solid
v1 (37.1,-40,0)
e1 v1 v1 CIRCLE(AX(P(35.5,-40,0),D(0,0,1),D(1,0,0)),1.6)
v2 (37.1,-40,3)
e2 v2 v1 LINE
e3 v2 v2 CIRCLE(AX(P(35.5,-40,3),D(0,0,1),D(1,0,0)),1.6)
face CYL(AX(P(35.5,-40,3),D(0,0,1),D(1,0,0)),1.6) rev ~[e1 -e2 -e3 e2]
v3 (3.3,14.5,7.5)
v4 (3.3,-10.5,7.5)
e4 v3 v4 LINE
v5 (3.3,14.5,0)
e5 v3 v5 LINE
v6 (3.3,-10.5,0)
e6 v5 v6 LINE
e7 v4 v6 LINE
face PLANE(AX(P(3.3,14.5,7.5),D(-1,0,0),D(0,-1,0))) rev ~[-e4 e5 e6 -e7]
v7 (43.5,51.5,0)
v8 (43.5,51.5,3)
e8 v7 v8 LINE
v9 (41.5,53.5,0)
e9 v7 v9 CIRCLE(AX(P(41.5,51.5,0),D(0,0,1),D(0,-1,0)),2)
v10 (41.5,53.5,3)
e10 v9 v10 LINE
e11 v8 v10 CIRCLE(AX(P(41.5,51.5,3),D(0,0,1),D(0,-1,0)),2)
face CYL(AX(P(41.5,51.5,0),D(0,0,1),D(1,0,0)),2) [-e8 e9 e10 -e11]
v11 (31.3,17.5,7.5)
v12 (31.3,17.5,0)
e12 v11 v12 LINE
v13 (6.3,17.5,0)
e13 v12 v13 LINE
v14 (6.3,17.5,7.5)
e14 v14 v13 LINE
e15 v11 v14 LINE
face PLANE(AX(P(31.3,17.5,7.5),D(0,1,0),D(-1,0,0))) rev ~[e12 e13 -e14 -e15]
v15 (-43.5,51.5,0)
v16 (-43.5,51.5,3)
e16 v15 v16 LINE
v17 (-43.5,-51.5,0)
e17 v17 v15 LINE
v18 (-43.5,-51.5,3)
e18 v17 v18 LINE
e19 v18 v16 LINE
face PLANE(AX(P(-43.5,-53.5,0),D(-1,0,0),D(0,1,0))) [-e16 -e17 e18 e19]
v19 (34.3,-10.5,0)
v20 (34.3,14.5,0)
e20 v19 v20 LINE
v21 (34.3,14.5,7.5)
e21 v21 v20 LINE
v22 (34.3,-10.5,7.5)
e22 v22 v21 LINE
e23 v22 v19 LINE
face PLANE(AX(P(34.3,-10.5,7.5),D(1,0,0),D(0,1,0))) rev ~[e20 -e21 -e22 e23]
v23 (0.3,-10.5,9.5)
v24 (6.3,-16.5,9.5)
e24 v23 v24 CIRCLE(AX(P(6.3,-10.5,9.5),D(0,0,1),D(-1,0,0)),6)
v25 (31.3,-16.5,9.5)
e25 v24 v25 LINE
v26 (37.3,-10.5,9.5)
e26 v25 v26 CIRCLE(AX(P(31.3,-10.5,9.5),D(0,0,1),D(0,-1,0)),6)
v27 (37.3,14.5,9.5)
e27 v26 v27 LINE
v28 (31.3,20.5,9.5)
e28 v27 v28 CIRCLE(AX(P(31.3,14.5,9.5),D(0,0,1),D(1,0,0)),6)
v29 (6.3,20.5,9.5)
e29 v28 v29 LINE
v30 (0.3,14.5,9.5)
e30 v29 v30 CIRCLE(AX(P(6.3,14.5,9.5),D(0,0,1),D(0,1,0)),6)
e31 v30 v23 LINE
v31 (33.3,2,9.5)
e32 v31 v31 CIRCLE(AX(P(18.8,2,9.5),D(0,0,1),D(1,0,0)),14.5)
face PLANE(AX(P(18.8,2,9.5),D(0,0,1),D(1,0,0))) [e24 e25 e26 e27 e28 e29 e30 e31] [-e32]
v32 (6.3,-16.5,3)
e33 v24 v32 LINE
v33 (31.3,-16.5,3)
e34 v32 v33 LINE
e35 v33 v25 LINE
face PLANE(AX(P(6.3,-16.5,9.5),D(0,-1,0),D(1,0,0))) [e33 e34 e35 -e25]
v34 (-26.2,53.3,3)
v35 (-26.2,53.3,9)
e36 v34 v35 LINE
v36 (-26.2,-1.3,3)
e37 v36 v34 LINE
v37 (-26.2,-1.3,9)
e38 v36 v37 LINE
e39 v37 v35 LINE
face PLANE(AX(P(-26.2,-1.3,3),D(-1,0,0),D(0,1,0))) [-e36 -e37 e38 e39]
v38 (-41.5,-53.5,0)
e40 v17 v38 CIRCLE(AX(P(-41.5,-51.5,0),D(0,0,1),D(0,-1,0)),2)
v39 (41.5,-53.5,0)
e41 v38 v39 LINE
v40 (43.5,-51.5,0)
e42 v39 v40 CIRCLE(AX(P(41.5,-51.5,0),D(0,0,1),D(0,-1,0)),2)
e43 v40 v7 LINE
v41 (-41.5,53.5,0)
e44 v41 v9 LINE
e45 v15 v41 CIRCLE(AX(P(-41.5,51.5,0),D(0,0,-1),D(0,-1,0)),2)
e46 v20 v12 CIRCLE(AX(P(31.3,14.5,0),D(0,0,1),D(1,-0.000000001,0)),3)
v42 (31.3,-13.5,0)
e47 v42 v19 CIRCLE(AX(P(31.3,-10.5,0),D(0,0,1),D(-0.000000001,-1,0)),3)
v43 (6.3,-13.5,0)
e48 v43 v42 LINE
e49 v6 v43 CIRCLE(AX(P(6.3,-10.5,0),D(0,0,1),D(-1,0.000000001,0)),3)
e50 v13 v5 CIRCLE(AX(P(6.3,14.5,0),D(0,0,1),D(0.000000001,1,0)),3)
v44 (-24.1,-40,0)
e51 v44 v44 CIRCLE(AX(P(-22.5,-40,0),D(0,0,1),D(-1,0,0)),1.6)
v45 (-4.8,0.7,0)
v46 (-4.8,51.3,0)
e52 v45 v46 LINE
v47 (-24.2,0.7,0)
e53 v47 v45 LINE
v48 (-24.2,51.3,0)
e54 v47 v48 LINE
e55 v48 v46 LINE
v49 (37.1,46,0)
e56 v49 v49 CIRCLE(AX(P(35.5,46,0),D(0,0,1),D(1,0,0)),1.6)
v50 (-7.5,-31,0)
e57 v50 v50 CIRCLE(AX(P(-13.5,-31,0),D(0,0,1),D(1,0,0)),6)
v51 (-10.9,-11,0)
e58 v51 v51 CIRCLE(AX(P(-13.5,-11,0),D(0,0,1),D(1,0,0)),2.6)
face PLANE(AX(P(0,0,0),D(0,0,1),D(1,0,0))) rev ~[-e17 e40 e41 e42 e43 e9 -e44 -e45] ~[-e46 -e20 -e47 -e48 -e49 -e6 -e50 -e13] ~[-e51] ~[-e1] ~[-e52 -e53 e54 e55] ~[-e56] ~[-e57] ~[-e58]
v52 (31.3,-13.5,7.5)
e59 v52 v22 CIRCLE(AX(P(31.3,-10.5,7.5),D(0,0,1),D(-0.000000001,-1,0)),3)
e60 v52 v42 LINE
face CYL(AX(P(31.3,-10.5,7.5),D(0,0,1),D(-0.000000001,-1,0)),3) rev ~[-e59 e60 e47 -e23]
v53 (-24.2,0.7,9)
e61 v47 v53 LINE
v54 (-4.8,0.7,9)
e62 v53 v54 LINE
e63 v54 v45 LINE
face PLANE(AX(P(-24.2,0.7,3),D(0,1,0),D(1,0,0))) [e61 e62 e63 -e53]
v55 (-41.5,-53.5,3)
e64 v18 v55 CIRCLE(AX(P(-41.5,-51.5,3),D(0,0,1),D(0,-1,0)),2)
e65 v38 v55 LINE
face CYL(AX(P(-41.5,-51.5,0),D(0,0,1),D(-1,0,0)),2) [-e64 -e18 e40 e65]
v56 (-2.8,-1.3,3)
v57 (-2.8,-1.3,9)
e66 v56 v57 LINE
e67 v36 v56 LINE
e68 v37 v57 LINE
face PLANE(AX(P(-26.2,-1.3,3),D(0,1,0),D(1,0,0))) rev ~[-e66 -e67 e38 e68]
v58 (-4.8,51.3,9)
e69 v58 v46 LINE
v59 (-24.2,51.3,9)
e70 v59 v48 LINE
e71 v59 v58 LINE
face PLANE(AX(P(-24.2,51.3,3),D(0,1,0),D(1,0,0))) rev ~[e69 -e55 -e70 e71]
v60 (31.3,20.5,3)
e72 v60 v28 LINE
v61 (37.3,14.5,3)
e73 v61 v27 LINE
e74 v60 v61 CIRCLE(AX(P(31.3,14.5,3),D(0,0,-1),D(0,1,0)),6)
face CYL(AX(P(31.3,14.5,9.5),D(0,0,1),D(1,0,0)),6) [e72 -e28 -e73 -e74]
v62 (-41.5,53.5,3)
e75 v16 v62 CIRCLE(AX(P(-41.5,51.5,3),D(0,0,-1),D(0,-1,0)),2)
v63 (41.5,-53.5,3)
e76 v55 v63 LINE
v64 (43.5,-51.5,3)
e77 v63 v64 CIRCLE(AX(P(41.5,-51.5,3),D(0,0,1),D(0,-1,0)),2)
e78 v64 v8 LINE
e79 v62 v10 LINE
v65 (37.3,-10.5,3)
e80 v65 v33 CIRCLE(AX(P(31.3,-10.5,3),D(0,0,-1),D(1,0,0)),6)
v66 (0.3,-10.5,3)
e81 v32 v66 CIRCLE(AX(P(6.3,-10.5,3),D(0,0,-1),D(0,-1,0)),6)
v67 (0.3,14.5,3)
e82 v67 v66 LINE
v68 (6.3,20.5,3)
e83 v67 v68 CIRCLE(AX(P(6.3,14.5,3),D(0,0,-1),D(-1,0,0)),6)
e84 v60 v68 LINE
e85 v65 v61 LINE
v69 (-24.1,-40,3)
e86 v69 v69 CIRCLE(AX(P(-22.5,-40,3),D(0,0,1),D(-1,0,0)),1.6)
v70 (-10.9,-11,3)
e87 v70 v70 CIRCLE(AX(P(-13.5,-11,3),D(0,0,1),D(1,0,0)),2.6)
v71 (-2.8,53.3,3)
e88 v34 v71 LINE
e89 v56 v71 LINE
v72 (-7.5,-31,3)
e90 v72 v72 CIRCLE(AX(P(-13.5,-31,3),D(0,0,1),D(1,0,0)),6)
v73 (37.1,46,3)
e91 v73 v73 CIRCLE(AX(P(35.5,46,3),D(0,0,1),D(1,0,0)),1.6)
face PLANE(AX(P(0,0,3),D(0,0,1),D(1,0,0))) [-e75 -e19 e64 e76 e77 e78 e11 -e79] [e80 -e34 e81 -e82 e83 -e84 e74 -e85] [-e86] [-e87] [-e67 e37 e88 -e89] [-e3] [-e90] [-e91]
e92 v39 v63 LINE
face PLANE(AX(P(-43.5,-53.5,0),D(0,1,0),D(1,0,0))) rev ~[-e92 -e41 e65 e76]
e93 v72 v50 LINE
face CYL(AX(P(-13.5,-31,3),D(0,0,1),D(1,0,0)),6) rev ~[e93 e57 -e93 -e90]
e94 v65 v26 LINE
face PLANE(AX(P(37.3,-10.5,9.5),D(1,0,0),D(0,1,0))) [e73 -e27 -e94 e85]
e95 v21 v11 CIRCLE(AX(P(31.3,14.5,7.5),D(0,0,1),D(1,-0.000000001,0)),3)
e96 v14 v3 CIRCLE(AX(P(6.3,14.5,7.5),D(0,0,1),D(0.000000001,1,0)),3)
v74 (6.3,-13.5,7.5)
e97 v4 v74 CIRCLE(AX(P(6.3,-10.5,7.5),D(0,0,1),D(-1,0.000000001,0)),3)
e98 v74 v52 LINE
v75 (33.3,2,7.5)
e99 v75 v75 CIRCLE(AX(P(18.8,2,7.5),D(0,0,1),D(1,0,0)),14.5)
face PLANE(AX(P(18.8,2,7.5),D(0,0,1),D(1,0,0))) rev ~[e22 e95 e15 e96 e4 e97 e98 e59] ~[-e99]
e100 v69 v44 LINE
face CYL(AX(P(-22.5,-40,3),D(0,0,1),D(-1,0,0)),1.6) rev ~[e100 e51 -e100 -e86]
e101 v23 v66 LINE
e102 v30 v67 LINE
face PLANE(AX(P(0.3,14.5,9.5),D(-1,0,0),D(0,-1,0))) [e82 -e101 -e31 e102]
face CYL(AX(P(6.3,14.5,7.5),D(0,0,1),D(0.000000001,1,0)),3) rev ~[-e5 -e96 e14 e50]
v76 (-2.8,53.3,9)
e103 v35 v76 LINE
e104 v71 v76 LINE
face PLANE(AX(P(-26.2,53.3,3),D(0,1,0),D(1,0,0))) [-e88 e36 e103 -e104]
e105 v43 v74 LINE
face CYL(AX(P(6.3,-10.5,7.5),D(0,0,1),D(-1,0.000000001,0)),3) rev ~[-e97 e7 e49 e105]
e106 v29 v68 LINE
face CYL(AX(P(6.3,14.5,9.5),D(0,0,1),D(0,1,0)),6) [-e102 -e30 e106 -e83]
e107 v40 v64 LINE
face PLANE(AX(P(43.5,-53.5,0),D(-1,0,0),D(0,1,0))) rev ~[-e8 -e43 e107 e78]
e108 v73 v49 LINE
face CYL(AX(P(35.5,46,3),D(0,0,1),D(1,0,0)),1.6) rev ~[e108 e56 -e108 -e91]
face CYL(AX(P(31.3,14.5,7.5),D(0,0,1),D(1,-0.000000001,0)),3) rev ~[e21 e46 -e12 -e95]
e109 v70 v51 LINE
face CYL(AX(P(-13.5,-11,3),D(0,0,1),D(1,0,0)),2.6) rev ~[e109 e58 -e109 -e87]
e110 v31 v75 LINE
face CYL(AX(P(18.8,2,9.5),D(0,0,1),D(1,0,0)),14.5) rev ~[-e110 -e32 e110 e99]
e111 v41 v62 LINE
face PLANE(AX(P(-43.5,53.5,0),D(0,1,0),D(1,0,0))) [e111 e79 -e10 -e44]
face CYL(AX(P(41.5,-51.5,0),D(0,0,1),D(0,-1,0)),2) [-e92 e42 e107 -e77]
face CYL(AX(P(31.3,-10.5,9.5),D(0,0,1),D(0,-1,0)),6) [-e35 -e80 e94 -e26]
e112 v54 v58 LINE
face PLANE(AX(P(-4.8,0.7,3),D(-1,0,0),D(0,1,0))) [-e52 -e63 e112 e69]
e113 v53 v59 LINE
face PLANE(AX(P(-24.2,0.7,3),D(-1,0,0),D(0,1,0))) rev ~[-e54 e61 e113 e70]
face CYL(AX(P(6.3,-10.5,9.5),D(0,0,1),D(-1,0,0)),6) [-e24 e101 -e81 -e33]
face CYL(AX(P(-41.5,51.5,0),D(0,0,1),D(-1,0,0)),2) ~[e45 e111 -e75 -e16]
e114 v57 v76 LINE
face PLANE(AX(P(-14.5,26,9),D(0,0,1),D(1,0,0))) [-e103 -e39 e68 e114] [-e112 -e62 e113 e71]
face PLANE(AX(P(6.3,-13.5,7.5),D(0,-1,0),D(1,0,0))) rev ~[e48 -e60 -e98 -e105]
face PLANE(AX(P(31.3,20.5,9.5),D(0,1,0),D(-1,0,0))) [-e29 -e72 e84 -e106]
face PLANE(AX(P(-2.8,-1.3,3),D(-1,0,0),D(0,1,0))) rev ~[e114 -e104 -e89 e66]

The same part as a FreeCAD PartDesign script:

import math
import FreeCAD as App
import Part
import Sketcher


def edges_at(feature, points):
    """Names of the edges that pass closest to the given points."""
    edges = feature.Shape.Edges
    near = lambda p: min(range(len(edges)), key=lambda i: edges[i].distToShape(Part.Vertex(*p))[0])
    return sorted({f"Edge{near(p) + 1}" for p in points})


def add_polygon(sketch, points):
    """Adds a closed chain of lines whose ends are joined by coincident constraints."""
    first, n = sketch.GeometryCount, len(points)
    for a, b in zip(points, points[1:] + points[:1]):
        sketch.addGeometry(Part.LineSegment(App.Vector(*a, 0), App.Vector(*b, 0)), False)
    for i in range(n):
        sketch.addConstraint(Sketcher.Constraint("Coincident", first + i, 2, first + (i + 1) % n, 1))

doc = App.newDocument("Part")
params = doc.addObject("Spreadsheet::Sheet", "Params")
for row, (alias, value) in enumerate([
    ("sketch1_width", "87 mm"),
    ("sketch1_height", "107 mm"),
    ("pad1_length", "3 mm"),
    ("fillet_radius", "2 mm"),
    ("sketch2_diameter", "3.2 mm"),
    ("pocket1_length", "3 mm"),
    ("sketch3_diameter", "3.2 mm"),
    ("pocket2_length", "3 mm"),
    ("sketch4_radius", "3 mm"),
    ("sketch4_width", "25 mm"),
    ("pocket3_length", "10 mm"),
    ("sketch5_radius", "6 mm"),
    ("sketch5_radius2", "3 mm"),
    ("sketch5_width", "25 mm"),
    ("pad2_length", "4.5 mm"),
    ("sketch6_radius", "3 mm"),
    ("sketch6_width", "25 mm"),
    ("pad3_length", "3 mm"),
    ("sketch7_diameter", "29 mm"),
    ("sketch7_radius", "6 mm"),
    ("sketch7_width", "25 mm"),
    ("pad4_length", "2 mm"),
    ("sketch8_diameter", "12 mm"),
    ("sketch8_diameter2", "5.2 mm"),
    ("pocket4_length", "10 mm"),
    ("sketch9_width", "19.4 mm"),
    ("sketch9_height", "50.6 mm"),
    ("pocket5_length", "10 mm"),
    ("sketch10_width", "23.4 mm"),
    ("sketch10_width2", "19.4 mm"),
    ("sketch10_height", "54.6 mm"),
    ("sketch10_height2", "50.6 mm"),
    ("pad5_length", "6 mm"),
], start=1):
    params.set(f"A{row}", alias)
    params.set(f"B{row}", "=" + value)
    params.setAlias(f"B{row}", alias)

body = doc.addObject("PartDesign::Body", "Body")

sketch1 = doc.addObject("Sketcher::SketchObject", "Sketch")
body.addObject(sketch1)
sketch1.AttachmentSupport = (doc.XY_Plane, [""])
sketch1.MapMode = "FlatFace"
add_polygon(sketch1, [(-44, 54), (-44, -54), (44, -54), (44, 54)])
sketch1.addConstraint(Sketcher.Constraint("Vertical", 0))
sketch1.addConstraint(Sketcher.Constraint("Horizontal", 1))
sketch1.addConstraint(Sketcher.Constraint("Vertical", 2))
sketch1.addConstraint(Sketcher.Constraint("Horizontal", 3))
sketch1.addConstraint(Sketcher.Constraint("Symmetric", 0, 2, 2, 2, -1, 1))
sketch1.addConstraint(Sketcher.Constraint("DistanceX", 1, 1, 1, 2, 87.0))
sketch1.addConstraint(Sketcher.Constraint("DistanceY", 0, 2, 0, 1, 107.0))
sketch1.setExpression("Constraints[9]", "Params.sketch1_width")
sketch1.setExpression("Constraints[10]", "Params.sketch1_height")
pad1 = doc.addObject("PartDesign::Pad", "Pad")
body.addObject(pad1)
pad1.Profile = sketch1
pad1.setExpression("Length", "Params.pad1_length")
doc.recompute()

fillet = doc.addObject("PartDesign::Fillet", "Fillet")
body.addObject(fillet)
fillet.Base = (pad1, edges_at(pad1, [
    (43.5, -53.5, 1.5),
    (-43.5, -53.5, 1.5),
    (-43.5, 53.5, 1.5),
    (43.5, 53.5, 1.5),
]))
fillet.setExpression("Radius", "Params.fillet_radius")

sketch2 = doc.addObject("Sketcher::SketchObject", "Sketch001")
body.addObject(sketch2)
sketch2.AttachmentSupport = (doc.XY_Plane, [""])
sketch2.MapMode = "FlatFace"
sketch2.AttachmentOffset = App.Placement(App.Vector(0, 0, 3), App.Rotation())
sketch2.addGeometry(Part.Circle(App.Vector(35.5, 46, 0), App.Vector(0, 0, 1), 1.6), False)
sketch2.addGeometry(Part.Circle(App.Vector(35.5, -40, 0), App.Vector(0, 0, 1), 1.6), False)
sketch2.addGeometry(Part.Circle(App.Vector(-22.5, 46, 0), App.Vector(0, 0, 1), 1.6), False)
sketch2.addGeometry(Part.Circle(App.Vector(-22.5, -40, 0), App.Vector(0, 0, 1), 1.6), False)
sketch2.addConstraint(Sketcher.Constraint("Equal", 0, 1))
sketch2.addConstraint(Sketcher.Constraint("Equal", 1, 2))
sketch2.addConstraint(Sketcher.Constraint("Equal", 2, 3))
sketch2.addConstraint(Sketcher.Constraint("Horizontal", 0, 3, 2, 3))
sketch2.addConstraint(Sketcher.Constraint("Horizontal", 1, 3, 3, 3))
sketch2.addConstraint(Sketcher.Constraint("Vertical", 0, 3, 1, 3))
sketch2.addConstraint(Sketcher.Constraint("Vertical", 2, 3, 3, 3))
sketch2.addConstraint(Sketcher.Constraint("Diameter", 0, 3.2))
sketch2.addConstraint(Sketcher.Constraint("DistanceY", -1, 1, 0, 3, 46.0))
sketch2.addConstraint(Sketcher.Constraint("DistanceY", 1, 3, -1, 1, 40.0))
sketch2.addConstraint(Sketcher.Constraint("DistanceX", 2, 3, 0, 3, 58.0))
sketch2.addConstraint(Sketcher.Constraint("DistanceX", -1, 1, 0, 3, 35.5))
sketch2.setExpression("Constraints[7]", "Params.sketch2_diameter")
pocket1 = doc.addObject("PartDesign::Pocket", "Pocket")
body.addObject(pocket1)
pocket1.Profile = sketch2
pocket1.setExpression("Length", "Params.pocket1_length")

sketch3 = doc.addObject("Sketcher::SketchObject", "Sketch002")
body.addObject(sketch3)
sketch3.AttachmentSupport = (doc.XY_Plane, [""])
sketch3.MapMode = "FlatFace"
sketch3.AttachmentOffset = App.Placement(App.Vector(0, 0, 3), App.Rotation())
sketch3.addGeometry(Part.Circle(App.Vector(34.8, 18, 0), App.Vector(0, 0, 1), 1.6), False)
sketch3.addGeometry(Part.Circle(App.Vector(34.8, -14, 0), App.Vector(0, 0, 1), 1.6), False)
sketch3.addGeometry(Part.Circle(App.Vector(2.8, -14, 0), App.Vector(0, 0, 1), 1.6), False)
sketch3.addGeometry(Part.Circle(App.Vector(2.8, 18, 0), App.Vector(0, 0, 1), 1.6), False)
sketch3.addConstraint(Sketcher.Constraint("Equal", 0, 1))
sketch3.addConstraint(Sketcher.Constraint("Equal", 1, 2))
sketch3.addConstraint(Sketcher.Constraint("Equal", 2, 3))
sketch3.addConstraint(Sketcher.Constraint("Horizontal", 1, 3, 2, 3))
sketch3.addConstraint(Sketcher.Constraint("Horizontal", 0, 3, 3, 3))
sketch3.addConstraint(Sketcher.Constraint("Vertical", 0, 3, 1, 3))
sketch3.addConstraint(Sketcher.Constraint("Vertical", 2, 3, 3, 3))
sketch3.addConstraint(Sketcher.Constraint("Diameter", 0, 3.2))
sketch3.addConstraint(Sketcher.Constraint("DistanceY", -1, 1, 0, 3, 18.0))
sketch3.addConstraint(Sketcher.Constraint("DistanceY", 1, 3, -1, 1, 14.0))
sketch3.addConstraint(Sketcher.Constraint("DistanceX", 2, 3, 1, 3, 32.0))
sketch3.addConstraint(Sketcher.Constraint("DistanceX", -1, 1, 0, 3, 34.8))
sketch3.setExpression("Constraints[7]", "Params.sketch3_diameter")
pocket2 = doc.addObject("PartDesign::Pocket", "Pocket001")
body.addObject(pocket2)
pocket2.Profile = sketch3
pocket2.setExpression("Length", "Params.pocket2_length")

sketch4 = doc.addObject("Sketcher::SketchObject", "Sketch003")
body.addObject(sketch4)
sketch4.AttachmentSupport = (doc.XY_Plane, [""])
sketch4.MapMode = "FlatFace"
sketch4.AttachmentOffset = App.Placement(App.Vector(0, 0, 3), App.Rotation())
sketch4.addGeometry(Part.LineSegment(App.Vector(6.3, -13.5, 0), App.Vector(31.3, -13.5, 0)), False)
sketch4.addGeometry(Part.ArcOfCircle(Part.Circle(App.Vector(31.3, -10.5, 0), App.Vector(0, 0, 1), 3), math.radians(-90), math.radians(0)), False)
sketch4.addGeometry(Part.LineSegment(App.Vector(34.3, -10.5, 0), App.Vector(34.3, 14.5, 0)), False)
sketch4.addGeometry(Part.ArcOfCircle(Part.Circle(App.Vector(31.3, 14.5, 0), App.Vector(0, 0, 1), 3), math.radians(0), math.radians(90)), False)
sketch4.addGeometry(Part.LineSegment(App.Vector(31.3, 17.5, 0), App.Vector(6.3, 17.5, 0)), False)
sketch4.addGeometry(Part.ArcOfCircle(Part.Circle(App.Vector(6.3, 14.5, 0), App.Vector(0, 0, 1), 3), math.radians(90), math.radians(180)), False)
sketch4.addGeometry(Part.LineSegment(App.Vector(3.3, 14.5, 0), App.Vector(3.3, -10.5, 0)), False)
sketch4.addGeometry(Part.ArcOfCircle(Part.Circle(App.Vector(6.3, -10.5, 0), App.Vector(0, 0, 1), 3), math.radians(180), math.radians(270)), False)
sketch4.addConstraint(Sketcher.Constraint("Tangent", 0, 2, 1, 1))
sketch4.addConstraint(Sketcher.Constraint("Tangent", 1, 2, 2, 1))
sketch4.addConstraint(Sketcher.Constraint("Tangent", 2, 2, 3, 1))
sketch4.addConstraint(Sketcher.Constraint("Tangent", 3, 2, 4, 1))
sketch4.addConstraint(Sketcher.Constraint("Tangent", 4, 2, 5, 1))
sketch4.addConstraint(Sketcher.Constraint("Tangent", 5, 2, 6, 1))
sketch4.addConstraint(Sketcher.Constraint("Tangent", 6, 2, 7, 1))
sketch4.addConstraint(Sketcher.Constraint("Tangent", 7, 2, 0, 1))
sketch4.addConstraint(Sketcher.Constraint("Horizontal", 0))
sketch4.addConstraint(Sketcher.Constraint("Vertical", 2))
sketch4.addConstraint(Sketcher.Constraint("Horizontal", 4))
sketch4.addConstraint(Sketcher.Constraint("Vertical", 6))
sketch4.addConstraint(Sketcher.Constraint("Equal", 1, 3))
sketch4.addConstraint(Sketcher.Constraint("Equal", 3, 5))
sketch4.addConstraint(Sketcher.Constraint("Equal", 5, 7))
sketch4.addConstraint(Sketcher.Constraint("Equal", 4, 2))
sketch4.addConstraint(Sketcher.Constraint("Radius", 1, 3.0))
sketch4.addConstraint(Sketcher.Constraint("DistanceX", 0, 1, 0, 2, 25.0))
sketch4.addConstraint(Sketcher.Constraint("DistanceX", -1, 1, 1, 3, 31.3))
sketch4.addConstraint(Sketcher.Constraint("DistanceY", 1, 3, -1, 1, 10.5))
sketch4.setExpression("Constraints[16]", "Params.sketch4_radius")
sketch4.setExpression("Constraints[17]", "Params.sketch4_width")
pocket3 = doc.addObject("PartDesign::Pocket", "Pocket002")
body.addObject(pocket3)
pocket3.Profile = sketch4
pocket3.setExpression("Length", "Params.pocket3_length")

sketch5 = doc.addObject("Sketcher::SketchObject", "Sketch004")
body.addObject(sketch5)
sketch5.AttachmentSupport = (doc.XY_Plane, [""])
sketch5.MapMode = "FlatFace"
sketch5.AttachmentOffset = App.Placement(App.Vector(0, 0, 7.5), App.Rotation())
sketch5.addGeometry(Part.LineSegment(App.Vector(6.3, -16.5, 0), App.Vector(31.3, -16.5, 0)), False)
sketch5.addGeometry(Part.ArcOfCircle(Part.Circle(App.Vector(31.3, -10.5, 0), App.Vector(0, 0, 1), 6), math.radians(-90), math.radians(0)), False)
sketch5.addGeometry(Part.LineSegment(App.Vector(37.3, -10.5, 0), App.Vector(37.3, 14.5, 0)), False)
sketch5.addGeometry(Part.ArcOfCircle(Part.Circle(App.Vector(31.3, 14.5, 0), App.Vector(0, 0, 1), 6), math.radians(0), math.radians(90)), False)
sketch5.addGeometry(Part.LineSegment(App.Vector(31.3, 20.5, 0), App.Vector(6.3, 20.5, 0)), False)
sketch5.addGeometry(Part.ArcOfCircle(Part.Circle(App.Vector(6.3, 14.5, 0), App.Vector(0, 0, 1), 6), math.radians(90), math.radians(180)), False)
sketch5.addGeometry(Part.LineSegment(App.Vector(0.3, 14.5, 0), App.Vector(0.3, -10.5, 0)), False)
sketch5.addGeometry(Part.ArcOfCircle(Part.Circle(App.Vector(6.3, -10.5, 0), App.Vector(0, 0, 1), 6), math.radians(180), math.radians(270)), False)
sketch5.addGeometry(Part.LineSegment(App.Vector(31.3, -13.5, 0), App.Vector(6.3, -13.5, 0)), False)
sketch5.addGeometry(Part.ArcOfCircle(Part.Circle(App.Vector(6.3, -10.5, 0), App.Vector(0, 0, 1), 3), math.radians(180), math.radians(270)), False)
sketch5.addGeometry(Part.LineSegment(App.Vector(3.3, -10.5, 0), App.Vector(3.3, 14.5, 0)), False)
sketch5.addGeometry(Part.ArcOfCircle(Part.Circle(App.Vector(6.3, 14.5, 0), App.Vector(0, 0, 1), 3), math.radians(90), math.radians(180)), False)
sketch5.addGeometry(Part.LineSegment(App.Vector(6.3, 17.5, 0), App.Vector(31.3, 17.5, 0)), False)
sketch5.addGeometry(Part.ArcOfCircle(Part.Circle(App.Vector(31.3, 14.5, 0), App.Vector(0, 0, 1), 3), math.radians(0), math.radians(90)), False)
sketch5.addGeometry(Part.LineSegment(App.Vector(34.3, 14.5, 0), App.Vector(34.3, -10.5, 0)), False)
sketch5.addGeometry(Part.ArcOfCircle(Part.Circle(App.Vector(31.3, -10.5, 0), App.Vector(0, 0, 1), 3), math.radians(-90), math.radians(0)), False)
sketch5.addConstraint(Sketcher.Constraint("Tangent", 0, 2, 1, 1))
sketch5.addConstraint(Sketcher.Constraint("Tangent", 1, 2, 2, 1))
sketch5.addConstraint(Sketcher.Constraint("Tangent", 2, 2, 3, 1))
sketch5.addConstraint(Sketcher.Constraint("Tangent", 3, 2, 4, 1))
sketch5.addConstraint(Sketcher.Constraint("Tangent", 4, 2, 5, 1))
sketch5.addConstraint(Sketcher.Constraint("Tangent", 5, 2, 6, 1))
sketch5.addConstraint(Sketcher.Constraint("Tangent", 6, 2, 7, 1))
sketch5.addConstraint(Sketcher.Constraint("Tangent", 7, 2, 0, 1))
sketch5.addConstraint(Sketcher.Constraint("Tangent", 8, 2, 9, 2))
sketch5.addConstraint(Sketcher.Constraint("Tangent", 9, 1, 10, 1))
sketch5.addConstraint(Sketcher.Constraint("Tangent", 10, 2, 11, 2))
sketch5.addConstraint(Sketcher.Constraint("Tangent", 11, 1, 12, 1))
sketch5.addConstraint(Sketcher.Constraint("Tangent", 12, 2, 13, 2))
sketch5.addConstraint(Sketcher.Constraint("Tangent", 13, 1, 14, 1))
sketch5.addConstraint(Sketcher.Constraint("Tangent", 14, 2, 15, 2))
sketch5.addConstraint(Sketcher.Constraint("Tangent", 15, 1, 8, 1))
sketch5.addConstraint(Sketcher.Constraint("Horizontal", 0))
sketch5.addConstraint(Sketcher.Constraint("Vertical", 2))
sketch5.addConstraint(Sketcher.Constraint("Horizontal", 4))
sketch5.addConstraint(Sketcher.Constraint("Vertical", 6))
sketch5.addConstraint(Sketcher.Constraint("Horizontal", 8))
sketch5.addConstraint(Sketcher.Constraint("Vertical", 10))
sketch5.addConstraint(Sketcher.Constraint("Horizontal", 12))
sketch5.addConstraint(Sketcher.Constraint("Vertical", 14))
sketch5.addConstraint(Sketcher.Constraint("Coincident", 9, 3, 7, 3))
sketch5.addConstraint(Sketcher.Constraint("Coincident", 11, 3, 5, 3))
sketch5.addConstraint(Sketcher.Constraint("Coincident", 13, 3, 3, 3))
sketch5.addConstraint(Sketcher.Constraint("Equal", 1, 3))
sketch5.addConstraint(Sketcher.Constraint("Equal", 3, 5))
sketch5.addConstraint(Sketcher.Constraint("Equal", 5, 7))
sketch5.addConstraint(Sketcher.Constraint("Equal", 13, 15))
sketch5.addConstraint(Sketcher.Constraint("Equal", 12, 2))
sketch5.addConstraint(Sketcher.Constraint("Radius", 1, 6.0))
sketch5.addConstraint(Sketcher.Constraint("Radius", 9, 3.0))
sketch5.addConstraint(Sketcher.Constraint("DistanceX", 0, 1, 0, 2, 25.0))
sketch5.addConstraint(Sketcher.Constraint("DistanceX", -1, 1, 1, 3, 31.3))
sketch5.addConstraint(Sketcher.Constraint("DistanceY", 1, 3, -1, 1, 10.5))
sketch5.setExpression("Constraints[32]", "Params.sketch5_radius")
sketch5.setExpression("Constraints[33]", "Params.sketch5_radius2")
sketch5.setExpression("Constraints[34]", "Params.sketch5_width")
pad2 = doc.addObject("PartDesign::Pad", "Pad001")
body.addObject(pad2)
pad2.Profile = sketch5
pad2.setExpression("Length", "Params.pad2_length")
pad2.Reversed = True

sketch6 = doc.addObject("Sketcher::SketchObject", "Sketch005")
body.addObject(sketch6)
sketch6.AttachmentSupport = (doc.XY_Plane, [""])
sketch6.MapMode = "FlatFace"
sketch6.AttachmentOffset = App.Placement(App.Vector(0, 0, 3), App.Rotation())
add_polygon(sketch6, [(37.3, 21.9), (37.3, -16.8), (0, -16.8), (0, 21.9)])
sketch6.addGeometry(Part.LineSegment(App.Vector(3.3, 14.5, 0), App.Vector(3.3, -10.5, 0)), False)
sketch6.addGeometry(Part.ArcOfCircle(Part.Circle(App.Vector(6.3, -10.5, 0), App.Vector(0, 0, 1), 3), math.radians(180), math.radians(270)), False)
sketch6.addGeometry(Part.LineSegment(App.Vector(6.3, -13.5, 0), App.Vector(31.3, -13.5, 0)), False)
sketch6.addGeometry(Part.ArcOfCircle(Part.Circle(App.Vector(31.3, -10.5, 0), App.Vector(0, 0, 1), 3), math.radians(-90), math.radians(0)), False)
sketch6.addGeometry(Part.LineSegment(App.Vector(34.3, -10.5, 0), App.Vector(34.3, 14.5, 0)), False)
sketch6.addGeometry(Part.ArcOfCircle(Part.Circle(App.Vector(31.3, 14.5, 0), App.Vector(0, 0, 1), 3), math.radians(0), math.radians(90)), False)
sketch6.addGeometry(Part.LineSegment(App.Vector(31.3, 17.5, 0), App.Vector(6.3, 17.5, 0)), False)
sketch6.addGeometry(Part.ArcOfCircle(Part.Circle(App.Vector(6.3, 14.5, 0), App.Vector(0, 0, 1), 3), math.radians(90), math.radians(180)), False)
sketch6.addConstraint(Sketcher.Constraint("Tangent", 4, 2, 5, 1))
sketch6.addConstraint(Sketcher.Constraint("Tangent", 5, 2, 6, 1))
sketch6.addConstraint(Sketcher.Constraint("Tangent", 6, 2, 7, 1))
sketch6.addConstraint(Sketcher.Constraint("Tangent", 7, 2, 8, 1))
sketch6.addConstraint(Sketcher.Constraint("Tangent", 8, 2, 9, 1))
sketch6.addConstraint(Sketcher.Constraint("Tangent", 9, 2, 10, 1))
sketch6.addConstraint(Sketcher.Constraint("Tangent", 10, 2, 11, 1))
sketch6.addConstraint(Sketcher.Constraint("Tangent", 11, 2, 4, 1))
sketch6.addConstraint(Sketcher.Constraint("Vertical", 0))
sketch6.addConstraint(Sketcher.Constraint("Horizontal", 1))
sketch6.addConstraint(Sketcher.Constraint("Vertical", 2))
sketch6.addConstraint(Sketcher.Constraint("Horizontal", 3))
sketch6.addConstraint(Sketcher.Constraint("Vertical", 4))
sketch6.addConstraint(Sketcher.Constraint("Horizontal", 6))
sketch6.addConstraint(Sketcher.Constraint("Vertical", 8))
sketch6.addConstraint(Sketcher.Constraint("Horizontal", 10))
sketch6.addConstraint(Sketcher.Constraint("Equal", 5, 7))
sketch6.addConstraint(Sketcher.Constraint("Equal", 7, 9))
sketch6.addConstraint(Sketcher.Constraint("Equal", 9, 11))
sketch6.addConstraint(Sketcher.Constraint("PointOnObject", 1, 2, -2))
sketch6.addConstraint(Sketcher.Constraint("Equal", 10, 4))
sketch6.addConstraint(Sketcher.Constraint("Radius", 5, 3.0))
sketch6.addConstraint(Sketcher.Constraint("DistanceX", 6, 1, 6, 2, 25.0))
sketch6.addConstraint(Sketcher.Constraint("DistanceX", -1, 1, 5, 3, 6.3))
sketch6.addConstraint(Sketcher.Constraint("DistanceY", 5, 3, -1, 1, 10.5))
sketch6.addConstraint(Sketcher.Constraint("DistanceX", 1, 2, 1, 1, 37.307006))
sketch6.addConstraint(Sketcher.Constraint("DistanceY", 0, 2, 0, 1, 38.753013))
sketch6.addConstraint(Sketcher.Constraint("DistanceY", -1, 1, 2, 2, 21.907021))
sketch6.setExpression("Constraints[25]", "Params.sketch6_radius")
sketch6.setExpression("Constraints[26]", "Params.sketch6_width")
pad3 = doc.addObject("PartDesign::Pad", "Pad002")
body.addObject(pad3)
pad3.Profile = sketch6
pad3.setExpression("Length", "Params.pad3_length")
pad3.Reversed = True

sketch7 = doc.addObject("Sketcher::SketchObject", "Sketch006")
body.addObject(sketch7)
sketch7.AttachmentSupport = (doc.XY_Plane, [""])
sketch7.MapMode = "FlatFace"
sketch7.AttachmentOffset = App.Placement(App.Vector(0, 0, 9.5), App.Rotation())
sketch7.addGeometry(Part.LineSegment(App.Vector(6, -16, 0), App.Vector(31, -16, 0)), False)
sketch7.addGeometry(Part.ArcOfCircle(Part.Circle(App.Vector(31, -10, 0), App.Vector(0, 0, 1), 6), math.radians(-90), math.radians(0)), False)
sketch7.addGeometry(Part.LineSegment(App.Vector(37, -10, 0), App.Vector(37, 14, 0)), False)
sketch7.addGeometry(Part.ArcOfCircle(Part.Circle(App.Vector(31, 14, 0), App.Vector(0, 0, 1), 6), math.radians(0), math.radians(90)), False)
sketch7.addGeometry(Part.LineSegment(App.Vector(31, 20, 0), App.Vector(6, 20, 0)), False)
sketch7.addGeometry(Part.ArcOfCircle(Part.Circle(App.Vector(6, 14, 0), App.Vector(0, 0, 1), 6), math.radians(90), math.radians(180)), False)
sketch7.addGeometry(Part.LineSegment(App.Vector(0, 14, 0), App.Vector(0, -10, 0)), False)
sketch7.addGeometry(Part.ArcOfCircle(Part.Circle(App.Vector(6, -10, 0), App.Vector(0, 0, 1), 6), math.radians(180), math.radians(270)), False)
sketch7.addGeometry(Part.Circle(App.Vector(19, 2, 0), App.Vector(0, 0, 1), 14), False)
sketch7.addConstraint(Sketcher.Constraint("Tangent", 0, 2, 1, 1))
sketch7.addConstraint(Sketcher.Constraint("Tangent", 1, 2, 2, 1))
sketch7.addConstraint(Sketcher.Constraint("Tangent", 2, 2, 3, 1))
sketch7.addConstraint(Sketcher.Constraint("Tangent", 3, 2, 4, 1))
sketch7.addConstraint(Sketcher.Constraint("Tangent", 4, 2, 5, 1))
sketch7.addConstraint(Sketcher.Constraint("Tangent", 5, 2, 6, 1))
sketch7.addConstraint(Sketcher.Constraint("Tangent", 6, 2, 7, 1))
sketch7.addConstraint(Sketcher.Constraint("Tangent", 7, 2, 0, 1))
sketch7.addConstraint(Sketcher.Constraint("Horizontal", 0))
sketch7.addConstraint(Sketcher.Constraint("Vertical", 2))
sketch7.addConstraint(Sketcher.Constraint("Horizontal", 4))
sketch7.addConstraint(Sketcher.Constraint("Vertical", 6))
sketch7.addConstraint(Sketcher.Constraint("Equal", 1, 3))
sketch7.addConstraint(Sketcher.Constraint("Equal", 3, 5))
sketch7.addConstraint(Sketcher.Constraint("Equal", 5, 7))
sketch7.addConstraint(Sketcher.Constraint("Equal", 4, 2))
sketch7.addConstraint(Sketcher.Constraint("Diameter", 8, 29.0))
sketch7.addConstraint(Sketcher.Constraint("Radius", 1, 6.0))
sketch7.addConstraint(Sketcher.Constraint("DistanceX", 0, 1, 0, 2, 25.0))
sketch7.addConstraint(Sketcher.Constraint("DistanceY", -1, 1, 8, 3, 2.0))
sketch7.addConstraint(Sketcher.Constraint("DistanceX", -1, 1, 1, 3, 31.3))
sketch7.addConstraint(Sketcher.Constraint("DistanceY", 1, 3, -1, 1, 10.5))
sketch7.addConstraint(Sketcher.Constraint("DistanceX", -1, 1, 8, 3, 18.8))
sketch7.setExpression("Constraints[16]", "Params.sketch7_diameter")
sketch7.setExpression("Constraints[17]", "Params.sketch7_radius")
sketch7.setExpression("Constraints[18]", "Params.sketch7_width")
pad4 = doc.addObject("PartDesign::Pad", "Pad003")
body.addObject(pad4)
pad4.Profile = sketch7
pad4.setExpression("Length", "Params.pad4_length")
pad4.Reversed = True

sketch8 = doc.addObject("Sketcher::SketchObject", "Sketch007")
body.addObject(sketch8)
sketch8.AttachmentSupport = (doc.XY_Plane, [""])
sketch8.MapMode = "FlatFace"
sketch8.AttachmentOffset = App.Placement(App.Vector(0, 0, 3), App.Rotation())
sketch8.addGeometry(Part.Circle(App.Vector(-13.5, -11, 0), App.Vector(0, 0, 1), 2.6), False)
sketch8.addGeometry(Part.Circle(App.Vector(-13.5, -31, 0), App.Vector(0, 0, 1), 6), False)
sketch8.addConstraint(Sketcher.Constraint("Vertical", 0, 3, 1, 3))
sketch8.addConstraint(Sketcher.Constraint("Diameter", 1, 12.0))
sketch8.addConstraint(Sketcher.Constraint("Diameter", 0, 5.2))
sketch8.addConstraint(Sketcher.Constraint("DistanceY", 0, 3, -1, 1, 11.0))
sketch8.addConstraint(Sketcher.Constraint("DistanceY", 1, 3, -1, 1, 31.0))
sketch8.addConstraint(Sketcher.Constraint("DistanceX", 0, 3, -1, 1, 13.5))
sketch8.setExpression("Constraints[1]", "Params.sketch8_diameter")
sketch8.setExpression("Constraints[2]", "Params.sketch8_diameter2")
pocket4 = doc.addObject("PartDesign::Pocket", "Pocket003")
body.addObject(pocket4)
pocket4.Profile = sketch8
pocket4.setExpression("Length", "Params.pocket4_length")

sketch9 = doc.addObject("Sketcher::SketchObject", "Sketch008")
body.addObject(sketch9)
sketch9.AttachmentSupport = (doc.XY_Plane, [""])
sketch9.MapMode = "FlatFace"
sketch9.AttachmentOffset = App.Placement(App.Vector(0, 0, 3), App.Rotation())
add_polygon(sketch9, [(-24, 51), (-24, 1), (-5, 1), (-5, 51)])
sketch9.addConstraint(Sketcher.Constraint("Vertical", 0))
sketch9.addConstraint(Sketcher.Constraint("Horizontal", 1))
sketch9.addConstraint(Sketcher.Constraint("Vertical", 2))
sketch9.addConstraint(Sketcher.Constraint("Horizontal", 3))
sketch9.addConstraint(Sketcher.Constraint("DistanceX", 1, 1, 1, 2, 19.4))
sketch9.addConstraint(Sketcher.Constraint("DistanceY", 0, 2, 0, 1, 50.6))
sketch9.addConstraint(Sketcher.Constraint("DistanceX", 0, 2, -1, 1, 24.2))
sketch9.addConstraint(Sketcher.Constraint("DistanceY", -1, 1, 0, 2, 0.7))
sketch9.setExpression("Constraints[8]", "Params.sketch9_width")
sketch9.setExpression("Constraints[9]", "Params.sketch9_height")
pocket5 = doc.addObject("PartDesign::Pocket", "Pocket004")
body.addObject(pocket5)
pocket5.Profile = sketch9
pocket5.setExpression("Length", "Params.pocket5_length")

sketch10 = doc.addObject("Sketcher::SketchObject", "Sketch009")
body.addObject(sketch10)
sketch10.AttachmentSupport = (doc.XY_Plane, [""])
sketch10.MapMode = "FlatFace"
sketch10.AttachmentOffset = App.Placement(App.Vector(0, 0, 3), App.Rotation())
add_polygon(sketch10, [(-26, 53), (-26, -1), (-3, -1), (-3, 53)])
add_polygon(sketch10, [(-5, 1), (-24, 1), (-24, 51), (-5, 51)])
sketch10.addConstraint(Sketcher.Constraint("Vertical", 0))
sketch10.addConstraint(Sketcher.Constraint("Horizontal", 1))
sketch10.addConstraint(Sketcher.Constraint("Vertical", 2))
sketch10.addConstraint(Sketcher.Constraint("Horizontal", 3))
sketch10.addConstraint(Sketcher.Constraint("Horizontal", 4))
sketch10.addConstraint(Sketcher.Constraint("Vertical", 5))
sketch10.addConstraint(Sketcher.Constraint("Horizontal", 6))
sketch10.addConstraint(Sketcher.Constraint("Vertical", 7))
sketch10.addConstraint(Sketcher.Constraint("DistanceX", 1, 1, 1, 2, 23.4))
sketch10.addConstraint(Sketcher.Constraint("DistanceX", 4, 2, 4, 1, 19.4))
sketch10.addConstraint(Sketcher.Constraint("DistanceY", 0, 2, 0, 1, 54.6))
sketch10.addConstraint(Sketcher.Constraint("DistanceY", 5, 1, 5, 2, 50.6))
sketch10.addConstraint(Sketcher.Constraint("DistanceX", 0, 2, 4, 2, 2.0))
sketch10.addConstraint(Sketcher.Constraint("DistanceY", 0, 2, 4, 2, 2.0))
sketch10.addConstraint(Sketcher.Constraint("DistanceX", 0, 2, -1, 1, 26.2))
sketch10.addConstraint(Sketcher.Constraint("DistanceY", 0, 2, -1, 1, 1.3))
sketch10.setExpression("Constraints[16]", "Params.sketch10_width")
sketch10.setExpression("Constraints[17]", "Params.sketch10_width2")
sketch10.setExpression("Constraints[18]", "Params.sketch10_height")
sketch10.setExpression("Constraints[19]", "Params.sketch10_height2")
pad5 = doc.addObject("PartDesign::Pad", "Pad004")
body.addObject(pad5)
pad5.Profile = sketch10
pad5.setExpression("Length", "Params.pad5_length")

doc.recompute()
